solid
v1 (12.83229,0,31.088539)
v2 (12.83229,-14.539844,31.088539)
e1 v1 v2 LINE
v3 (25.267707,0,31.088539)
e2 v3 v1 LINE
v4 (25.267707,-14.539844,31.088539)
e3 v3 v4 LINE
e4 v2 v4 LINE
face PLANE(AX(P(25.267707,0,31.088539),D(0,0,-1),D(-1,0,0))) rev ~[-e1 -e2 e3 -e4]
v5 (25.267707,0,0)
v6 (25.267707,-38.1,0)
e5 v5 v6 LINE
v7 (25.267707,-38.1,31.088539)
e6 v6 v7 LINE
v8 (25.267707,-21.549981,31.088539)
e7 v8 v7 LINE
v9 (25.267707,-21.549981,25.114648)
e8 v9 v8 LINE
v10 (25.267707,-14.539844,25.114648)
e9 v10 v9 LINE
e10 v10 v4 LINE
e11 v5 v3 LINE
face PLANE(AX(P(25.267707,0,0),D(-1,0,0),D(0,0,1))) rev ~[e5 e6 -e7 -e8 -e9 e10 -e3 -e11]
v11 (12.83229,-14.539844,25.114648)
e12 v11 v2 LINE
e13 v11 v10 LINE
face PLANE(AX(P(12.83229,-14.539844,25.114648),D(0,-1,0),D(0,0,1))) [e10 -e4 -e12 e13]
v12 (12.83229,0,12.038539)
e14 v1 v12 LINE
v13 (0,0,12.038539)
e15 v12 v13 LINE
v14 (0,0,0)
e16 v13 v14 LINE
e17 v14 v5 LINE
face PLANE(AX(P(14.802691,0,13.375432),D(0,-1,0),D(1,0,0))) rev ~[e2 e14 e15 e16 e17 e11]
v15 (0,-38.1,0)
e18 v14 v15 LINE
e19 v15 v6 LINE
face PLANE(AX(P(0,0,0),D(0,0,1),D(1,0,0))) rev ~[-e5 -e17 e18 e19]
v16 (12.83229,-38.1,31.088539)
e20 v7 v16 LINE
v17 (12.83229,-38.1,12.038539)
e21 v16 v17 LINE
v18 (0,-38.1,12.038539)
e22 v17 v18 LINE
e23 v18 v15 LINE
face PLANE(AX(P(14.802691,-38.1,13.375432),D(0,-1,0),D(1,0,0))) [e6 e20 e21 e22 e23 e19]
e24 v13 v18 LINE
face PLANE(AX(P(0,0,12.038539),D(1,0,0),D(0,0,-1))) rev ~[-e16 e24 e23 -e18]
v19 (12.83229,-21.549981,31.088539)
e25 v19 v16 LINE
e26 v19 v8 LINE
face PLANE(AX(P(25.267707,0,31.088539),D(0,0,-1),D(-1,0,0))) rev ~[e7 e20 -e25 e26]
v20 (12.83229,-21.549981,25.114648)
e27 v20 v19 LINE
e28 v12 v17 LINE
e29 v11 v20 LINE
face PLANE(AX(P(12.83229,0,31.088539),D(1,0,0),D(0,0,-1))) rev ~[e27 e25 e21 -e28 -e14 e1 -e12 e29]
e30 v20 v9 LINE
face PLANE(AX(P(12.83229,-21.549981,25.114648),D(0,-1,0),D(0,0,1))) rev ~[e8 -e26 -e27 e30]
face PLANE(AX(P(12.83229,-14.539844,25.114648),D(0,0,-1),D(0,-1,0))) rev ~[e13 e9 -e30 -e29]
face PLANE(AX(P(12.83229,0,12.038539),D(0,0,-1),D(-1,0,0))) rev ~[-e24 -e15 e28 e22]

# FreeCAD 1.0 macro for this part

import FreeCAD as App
import Part
import Sketcher
from FreeCAD import Vector
Q = App.Units.Quantity

doc = App.newDocument("Part")
body = doc.addObject("PartDesign::Body", "Body")

# Sketch on XZ plane
sketch1 = doc.addObject("Sketcher::SketchObject", "Sketch")
body.addObject(sketch1)
sketch1.AttachmentSupport = (doc.XZ_Plane, [""])
sketch1.MapMode = "FlatFace"
sketch1.addGeometry([
    Part.LineSegment(Vector(0, 12, 0), Vector(0, 0, 0)),  # 0
    Part.LineSegment(Vector(0, 0, 0), Vector(25, 0, 0)),  # 1
    Part.LineSegment(Vector(25, 0, 0), Vector(25, 31, 0)),  # 2
    Part.LineSegment(Vector(25, 31, 0), Vector(13, 31, 0)),  # 3
    Part.LineSegment(Vector(13, 31, 0), Vector(13, 12, 0)),  # 4
    Part.LineSegment(Vector(13, 12, 0), Vector(0, 12, 0)),  # 5
], False)
sketch1.addConstraint([
    Sketcher.Constraint("Coincident", 0, 2, 1, 1),
    Sketcher.Constraint("Coincident", 1, 2, 2, 1),
    Sketcher.Constraint("Coincident", 2, 2, 3, 1),
    Sketcher.Constraint("Coincident", 3, 2, 4, 1),
    Sketcher.Constraint("Coincident", 4, 2, 5, 1),
    Sketcher.Constraint("Coincident", 5, 2, 0, 1),
    Sketcher.Constraint("Vertical", 0),
    Sketcher.Constraint("Horizontal", 1),
    Sketcher.Constraint("Vertical", 2),
    Sketcher.Constraint("Horizontal", 3),
    Sketcher.Constraint("Vertical", 4),
    Sketcher.Constraint("Horizontal", 5),
    Sketcher.Constraint("Coincident", 0, 2, -1, 1),
    Sketcher.Constraint("DistanceY", 4, 2, 4, 1, Q("0.75 in")),
    Sketcher.Constraint("DistanceX", 5, 2, 5, 1, 12.83229),
    Sketcher.Constraint("DistanceY", 0, 2, 0, 1, 12.038539),
    Sketcher.Constraint("DistanceX", 1, 1, 1, 2, 25.267707),
])
pad1 = doc.addObject("PartDesign::Pad", "Pad")
body.addObject(pad1)
pad1.Profile = sketch1
pad1.Length = Q("1.5 in")

# Sketch on YZ plane
sketch2 = doc.addObject("Sketcher::SketchObject", "Sketch001")
body.addObject(sketch2)
sketch2.AttachmentSupport = (doc.YZ_Plane, [""])
sketch2.MapMode = "FlatFace"
sketch2.addGeometry([
    Part.LineSegment(Vector(-12, 22, 0), Vector(-12, 31, 0)),
    Part.LineSegment(Vector(-12, 31, 0), Vector(-25, 31, 0)),
    Part.LineSegment(Vector(-25, 31, 0), Vector(-25, 22, 0)),
    Part.LineSegment(Vector(-25, 22, 0), Vector(-12, 22, 0)),
], False)
sketch2.addConstraint([
    Sketcher.Constraint("Coincident", 0, 2, 1, 1),
    Sketcher.Constraint("Coincident", 1, 2, 2, 1),
    Sketcher.Constraint("Coincident", 2, 2, 3, 1),
    Sketcher.Constraint("Coincident", 3, 2, 0, 1),
    Sketcher.Constraint("Vertical", 0),
    Sketcher.Constraint("Vertical", 2),
    Sketcher.Constraint("Horizontal", 3),
    Sketcher.Constraint("DistanceX", 3, 1, 3, 2, 12.404648),
    Sketcher.Constraint("DistanceY", 0, 1, 0, 2, 8.683255),
    Sketcher.Constraint("DistanceY", 2, 2, 2, 1, 8.993372),
    Sketcher.Constraint("DistanceY", -1, 1, 0, 2, 30.85657),
    Sketcher.Constraint("DistanceX", 1, 2, -1, 1, 24.654241),
])
pocket1 = doc.addObject("PartDesign::Pocket", "Pocket")
body.addObject(pocket1)
pocket1.Profile = sketch2
pocket1.Length = Q("0.5 in")

# Sketch on YZ plane
sketch3 = doc.addObject("Sketcher::SketchObject", "Sketch002")
body.addObject(sketch3)
sketch3.AttachmentSupport = (doc.YZ_Plane, [""])
sketch3.MapMode = "FlatFace"
sketch3.AttachmentOffset = App.Placement(Vector(0, 0, 12.83229), App.Rotation())
sketch3.addGeometry([
    Part.LineSegment(Vector(-15, 31, 0), Vector(-15, 25, 0)),
    Part.LineSegment(Vector(-15, 25, 0), Vector(-22, 25, 0)),
    Part.LineSegment(Vector(-22, 25, 0), Vector(-22, 31, 0)),
    Part.LineSegment(Vector(-22, 31, 0), Vector(-15, 31, 0)),
], False)
sketch3.addConstraint([
    Sketcher.Constraint("Coincident", 0, 2, 1, 1),
    Sketcher.Constraint("Coincident", 1, 2, 2, 1),
    Sketcher.Constraint("Coincident", 2, 2, 3, 1),
    Sketcher.Constraint("Coincident", 3, 2, 0, 1),
    Sketcher.Constraint("Vertical", 0),
    Sketcher.Constraint("Horizontal", 1),
    Sketcher.Constraint("Vertical", 2),
    Sketcher.Constraint("Horizontal", 3),
    Sketcher.Constraint("DistanceY", 0, 2, 0, 1, 5.973891),
    Sketcher.Constraint("DistanceX", 1, 2, 1, 1, 7.010137),
    Sketcher.Constraint("DistanceY", -1, 1, 0, 2, 25.114648),
    Sketcher.Constraint("DistanceX", 1, 2, -1, 1, 21.549981),
])
pocket2 = doc.addObject("PartDesign::Pocket", "Pocket001")
body.addObject(pocket2)
pocket2.Profile = sketch3
pocket2.Length = Q("0.5 in")
pocket2.Reversed = True

doc.recompute()
